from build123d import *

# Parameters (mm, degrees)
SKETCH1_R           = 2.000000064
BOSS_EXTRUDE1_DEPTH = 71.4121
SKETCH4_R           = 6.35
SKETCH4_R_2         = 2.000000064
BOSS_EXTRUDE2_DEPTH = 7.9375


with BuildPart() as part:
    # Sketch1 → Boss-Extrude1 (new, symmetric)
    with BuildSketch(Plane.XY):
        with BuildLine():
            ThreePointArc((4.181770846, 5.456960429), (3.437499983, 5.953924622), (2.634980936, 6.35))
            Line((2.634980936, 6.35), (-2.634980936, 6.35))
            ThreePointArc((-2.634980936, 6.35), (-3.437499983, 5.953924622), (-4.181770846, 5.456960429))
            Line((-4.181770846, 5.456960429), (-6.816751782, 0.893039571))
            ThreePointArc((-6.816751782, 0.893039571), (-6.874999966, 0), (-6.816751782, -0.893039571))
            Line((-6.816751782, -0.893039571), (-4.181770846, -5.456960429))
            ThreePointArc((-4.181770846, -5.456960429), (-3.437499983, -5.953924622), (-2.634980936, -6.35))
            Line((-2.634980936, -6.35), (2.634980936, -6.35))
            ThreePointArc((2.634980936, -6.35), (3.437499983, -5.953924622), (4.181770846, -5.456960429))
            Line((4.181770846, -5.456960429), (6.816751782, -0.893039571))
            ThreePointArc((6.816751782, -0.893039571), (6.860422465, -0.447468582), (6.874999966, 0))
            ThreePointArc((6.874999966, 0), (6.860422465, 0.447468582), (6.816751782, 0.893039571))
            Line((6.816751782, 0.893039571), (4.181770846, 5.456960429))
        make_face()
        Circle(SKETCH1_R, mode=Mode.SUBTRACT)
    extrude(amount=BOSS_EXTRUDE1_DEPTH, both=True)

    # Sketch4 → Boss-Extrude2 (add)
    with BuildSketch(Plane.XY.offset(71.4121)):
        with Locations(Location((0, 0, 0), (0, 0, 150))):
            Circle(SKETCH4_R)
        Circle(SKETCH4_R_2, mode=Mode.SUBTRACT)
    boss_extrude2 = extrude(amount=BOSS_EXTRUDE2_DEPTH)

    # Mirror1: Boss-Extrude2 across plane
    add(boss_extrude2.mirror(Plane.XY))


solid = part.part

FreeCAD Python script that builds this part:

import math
import FreeCAD as App
import Part
import Sketcher
from FreeCAD import Vector
Q = App.Units.Quantity

doc = App.newDocument("Part")
params = doc.addObject("Spreadsheet::Sheet", "Params")
for row, (alias, value) in enumerate([
    ("pad1_length", "5.623 in"),
    ("sketch2_diameter", "0.5 in"),
    ("pad2_length", "0.3125 in"),
], start=1):
    params.set(f"A{row}", alias)
    params.set(f"B{row}", "=" + value)
    params.setAlias(f"B{row}", alias)

body = doc.addObject("PartDesign::Body", "Body")

# Sketch on XY plane
sketch1 = body.newObject("Sketcher::SketchObject", "Sketch")
sketch1.AttachmentSupport = (doc.getObject("XY_Plane"), [""])
sketch1.MapMode = "FlatFace"
sketch1.addGeometry([
    Part.ArcOfCircle(Part.Circle(Vector(0, 0, 0), Vector(0, 0, 1), 6.9), math.radians(52.54), math.radians(67.46)),  # 0
    Part.LineSegment(Vector(2.6, 6.3, 0), Vector(-2.6, 6.3, 0)),  # 1
    Part.ArcOfCircle(Part.Circle(Vector(0, 0, 0), Vector(0, 0, 1), 6.9), math.radians(112.54), math.radians(127.46)),  # 2
    Part.LineSegment(Vector(-4.2, 5.5, 0), Vector(-6.8, 0.9, 0)),  # 3
    Part.ArcOfCircle(Part.Circle(Vector(0, 0, 0), Vector(0, 0, 1), 6.9), math.radians(172.54), math.radians(187.46)),  # 4
    Part.LineSegment(Vector(-6.8, -0.9, 0), Vector(-4.2, -5.5, 0)),  # 5
    Part.ArcOfCircle(Part.Circle(Vector(0, 0, 0), Vector(0, 0, 1), 6.9), math.radians(-127.46), math.radians(-112.54)),  # 6
    Part.LineSegment(Vector(-2.6, -6.3, 0), Vector(2.6, -6.3, 0)),  # 7
    Part.ArcOfCircle(Part.Circle(Vector(0, 0, 0), Vector(0, 0, 1), 6.9), math.radians(-67.46), math.radians(-52.54)),  # 8
    Part.LineSegment(Vector(4.2, -5.5, 0), Vector(6.8, -0.9, 0)),  # 9
    Part.ArcOfCircle(Part.Circle(Vector(0, 0, 0), Vector(0, 0, 1), 6.9), math.radians(-7.46), math.radians(0)),  # 10
    Part.ArcOfCircle(Part.Circle(Vector(0, 0, 0), Vector(0, 0, 1), 6.9), math.radians(0), math.radians(7.46)),  # 11
    Part.LineSegment(Vector(6.8, 0.9, 0), Vector(4.2, 5.5, 0)),  # 12
    Part.Circle(Vector(0, 0, 0), Vector(0, 0, 1), 2),  # 13
], False)
sketch1.addConstraint([
    Sketcher.Constraint("Coincident", 0, 2, 1, 1),
    Sketcher.Constraint("Coincident", 1, 2, 2, 1),
    Sketcher.Constraint("Coincident", 2, 2, 3, 1),
    Sketcher.Constraint("Coincident", 3, 2, 4, 1),
    Sketcher.Constraint("Coincident", 4, 2, 5, 1),
    Sketcher.Constraint("Coincident", 5, 2, 6, 1),
    Sketcher.Constraint("Coincident", 6, 2, 7, 1),
    Sketcher.Constraint("Coincident", 7, 2, 8, 1),
    Sketcher.Constraint("Coincident", 8, 2, 9, 1),
    Sketcher.Constraint("Coincident", 9, 2, 10, 1),
    Sketcher.Constraint("Tangent", 10, 2, 11, 1),
    Sketcher.Constraint("Coincident", 11, 2, 12, 1),
    Sketcher.Constraint("Coincident", 12, 2, 0, 1),
    Sketcher.Constraint("Horizontal", 1),
    Sketcher.Constraint("Horizontal", 7),
    Sketcher.Constraint("Coincident", 0, 3, -1, 1),
    Sketcher.Constraint("Coincident", 2, 3, -1, 1),
    Sketcher.Constraint("Coincident", 4, 3, -1, 1),
    Sketcher.Constraint("Coincident", 6, 3, -1, 1),
    Sketcher.Constraint("Coincident", 8, 3, -1, 1),
    Sketcher.Constraint("Coincident", 10, 3, -1, 1),
    Sketcher.Constraint("Coincident", 13, 3, -1, 1),
    Sketcher.Constraint("Equal", 0, 2),
    Sketcher.Constraint("Equal", 2, 4),
    Sketcher.Constraint("Equal", 4, 6),
    Sketcher.Constraint("Equal", 6, 8),
    Sketcher.Constraint("Equal", 8, 10),
    Sketcher.Constraint("Equal", 10, 11),
    Sketcher.Constraint("PointOnObject", 10, 2, -1),
    Sketcher.Constraint("Parallel", 3, 9),
    Sketcher.Constraint("Parallel", 5, 12),
    Sketcher.Constraint("Horizontal", 5, 2, 8, 2),
    Sketcher.Constraint("Horizontal", 4, 2, 9, 2),
    Sketcher.Constraint("Horizontal", 3, 2, 11, 2),
    Sketcher.Constraint("Vertical", 3, 2, 4, 2),
    Sketcher.Constraint("Vertical", 1, 2, 6, 2),
    Sketcher.Constraint("Angle", 3, Q("-120 deg")),
    Sketcher.Constraint("Diameter", 13, Q("4 mm")),
    Sketcher.Constraint("DistanceY", -1, 1, 0, 2, Q("0.25 in")),
    Sketcher.Constraint("Radius", 0, Q("6.875 mm")),
    Sketcher.Constraint("Distance", 3, Q("5.269962 mm")),
])
pad1 = body.newObject("PartDesign::Pad", "Pad")
pad1.Profile = sketch1
pad1.setExpression("Length", "Params.pad1_length")
pad1.Midplane = True

# Sketch on XY plane
sketch2 = body.newObject("Sketcher::SketchObject", "Sketch001")
sketch2.AttachmentSupport = (doc.getObject("XY_Plane"), [""])
sketch2.MapMode = "FlatFace"
sketch2.AttachmentOffset = App.Placement(Vector(0, 0, 2.8115 * 25.4), App.Rotation())
sketch2.addGeometry([
    Part.Circle(Vector(0, 0, 0), Vector(0, 0, 1), 6.3),
    Part.Circle(Vector(0, 0, 0), Vector(0, 0, 1), 2),
], False)
sketch2.addConstraint([
    Sketcher.Constraint("Coincident", 0, 3, -1, 1),
    Sketcher.Constraint("Coincident", 1, 3, -1, 1),
    Sketcher.Constraint("Diameter", 0, Q("0.5 in")),
    Sketcher.Constraint("Diameter", 1, Q("4 mm")),
])
sketch2.setExpression("Constraints[2]", "Params.sketch2_diameter")
pad2 = body.newObject("PartDesign::Pad", "Pad001")
pad2.Profile = sketch2
pad2.setExpression("Length", "Params.pad2_length")
doc.recompute()

mirrored = body.newObject("PartDesign::Mirrored", "Mirrored")
mirrored.Originals = [pad2]
mirrored.MirrorPlane = (doc.getObject("XY_Plane"), [""])
body.Tip = mirrored

doc.recompute()
